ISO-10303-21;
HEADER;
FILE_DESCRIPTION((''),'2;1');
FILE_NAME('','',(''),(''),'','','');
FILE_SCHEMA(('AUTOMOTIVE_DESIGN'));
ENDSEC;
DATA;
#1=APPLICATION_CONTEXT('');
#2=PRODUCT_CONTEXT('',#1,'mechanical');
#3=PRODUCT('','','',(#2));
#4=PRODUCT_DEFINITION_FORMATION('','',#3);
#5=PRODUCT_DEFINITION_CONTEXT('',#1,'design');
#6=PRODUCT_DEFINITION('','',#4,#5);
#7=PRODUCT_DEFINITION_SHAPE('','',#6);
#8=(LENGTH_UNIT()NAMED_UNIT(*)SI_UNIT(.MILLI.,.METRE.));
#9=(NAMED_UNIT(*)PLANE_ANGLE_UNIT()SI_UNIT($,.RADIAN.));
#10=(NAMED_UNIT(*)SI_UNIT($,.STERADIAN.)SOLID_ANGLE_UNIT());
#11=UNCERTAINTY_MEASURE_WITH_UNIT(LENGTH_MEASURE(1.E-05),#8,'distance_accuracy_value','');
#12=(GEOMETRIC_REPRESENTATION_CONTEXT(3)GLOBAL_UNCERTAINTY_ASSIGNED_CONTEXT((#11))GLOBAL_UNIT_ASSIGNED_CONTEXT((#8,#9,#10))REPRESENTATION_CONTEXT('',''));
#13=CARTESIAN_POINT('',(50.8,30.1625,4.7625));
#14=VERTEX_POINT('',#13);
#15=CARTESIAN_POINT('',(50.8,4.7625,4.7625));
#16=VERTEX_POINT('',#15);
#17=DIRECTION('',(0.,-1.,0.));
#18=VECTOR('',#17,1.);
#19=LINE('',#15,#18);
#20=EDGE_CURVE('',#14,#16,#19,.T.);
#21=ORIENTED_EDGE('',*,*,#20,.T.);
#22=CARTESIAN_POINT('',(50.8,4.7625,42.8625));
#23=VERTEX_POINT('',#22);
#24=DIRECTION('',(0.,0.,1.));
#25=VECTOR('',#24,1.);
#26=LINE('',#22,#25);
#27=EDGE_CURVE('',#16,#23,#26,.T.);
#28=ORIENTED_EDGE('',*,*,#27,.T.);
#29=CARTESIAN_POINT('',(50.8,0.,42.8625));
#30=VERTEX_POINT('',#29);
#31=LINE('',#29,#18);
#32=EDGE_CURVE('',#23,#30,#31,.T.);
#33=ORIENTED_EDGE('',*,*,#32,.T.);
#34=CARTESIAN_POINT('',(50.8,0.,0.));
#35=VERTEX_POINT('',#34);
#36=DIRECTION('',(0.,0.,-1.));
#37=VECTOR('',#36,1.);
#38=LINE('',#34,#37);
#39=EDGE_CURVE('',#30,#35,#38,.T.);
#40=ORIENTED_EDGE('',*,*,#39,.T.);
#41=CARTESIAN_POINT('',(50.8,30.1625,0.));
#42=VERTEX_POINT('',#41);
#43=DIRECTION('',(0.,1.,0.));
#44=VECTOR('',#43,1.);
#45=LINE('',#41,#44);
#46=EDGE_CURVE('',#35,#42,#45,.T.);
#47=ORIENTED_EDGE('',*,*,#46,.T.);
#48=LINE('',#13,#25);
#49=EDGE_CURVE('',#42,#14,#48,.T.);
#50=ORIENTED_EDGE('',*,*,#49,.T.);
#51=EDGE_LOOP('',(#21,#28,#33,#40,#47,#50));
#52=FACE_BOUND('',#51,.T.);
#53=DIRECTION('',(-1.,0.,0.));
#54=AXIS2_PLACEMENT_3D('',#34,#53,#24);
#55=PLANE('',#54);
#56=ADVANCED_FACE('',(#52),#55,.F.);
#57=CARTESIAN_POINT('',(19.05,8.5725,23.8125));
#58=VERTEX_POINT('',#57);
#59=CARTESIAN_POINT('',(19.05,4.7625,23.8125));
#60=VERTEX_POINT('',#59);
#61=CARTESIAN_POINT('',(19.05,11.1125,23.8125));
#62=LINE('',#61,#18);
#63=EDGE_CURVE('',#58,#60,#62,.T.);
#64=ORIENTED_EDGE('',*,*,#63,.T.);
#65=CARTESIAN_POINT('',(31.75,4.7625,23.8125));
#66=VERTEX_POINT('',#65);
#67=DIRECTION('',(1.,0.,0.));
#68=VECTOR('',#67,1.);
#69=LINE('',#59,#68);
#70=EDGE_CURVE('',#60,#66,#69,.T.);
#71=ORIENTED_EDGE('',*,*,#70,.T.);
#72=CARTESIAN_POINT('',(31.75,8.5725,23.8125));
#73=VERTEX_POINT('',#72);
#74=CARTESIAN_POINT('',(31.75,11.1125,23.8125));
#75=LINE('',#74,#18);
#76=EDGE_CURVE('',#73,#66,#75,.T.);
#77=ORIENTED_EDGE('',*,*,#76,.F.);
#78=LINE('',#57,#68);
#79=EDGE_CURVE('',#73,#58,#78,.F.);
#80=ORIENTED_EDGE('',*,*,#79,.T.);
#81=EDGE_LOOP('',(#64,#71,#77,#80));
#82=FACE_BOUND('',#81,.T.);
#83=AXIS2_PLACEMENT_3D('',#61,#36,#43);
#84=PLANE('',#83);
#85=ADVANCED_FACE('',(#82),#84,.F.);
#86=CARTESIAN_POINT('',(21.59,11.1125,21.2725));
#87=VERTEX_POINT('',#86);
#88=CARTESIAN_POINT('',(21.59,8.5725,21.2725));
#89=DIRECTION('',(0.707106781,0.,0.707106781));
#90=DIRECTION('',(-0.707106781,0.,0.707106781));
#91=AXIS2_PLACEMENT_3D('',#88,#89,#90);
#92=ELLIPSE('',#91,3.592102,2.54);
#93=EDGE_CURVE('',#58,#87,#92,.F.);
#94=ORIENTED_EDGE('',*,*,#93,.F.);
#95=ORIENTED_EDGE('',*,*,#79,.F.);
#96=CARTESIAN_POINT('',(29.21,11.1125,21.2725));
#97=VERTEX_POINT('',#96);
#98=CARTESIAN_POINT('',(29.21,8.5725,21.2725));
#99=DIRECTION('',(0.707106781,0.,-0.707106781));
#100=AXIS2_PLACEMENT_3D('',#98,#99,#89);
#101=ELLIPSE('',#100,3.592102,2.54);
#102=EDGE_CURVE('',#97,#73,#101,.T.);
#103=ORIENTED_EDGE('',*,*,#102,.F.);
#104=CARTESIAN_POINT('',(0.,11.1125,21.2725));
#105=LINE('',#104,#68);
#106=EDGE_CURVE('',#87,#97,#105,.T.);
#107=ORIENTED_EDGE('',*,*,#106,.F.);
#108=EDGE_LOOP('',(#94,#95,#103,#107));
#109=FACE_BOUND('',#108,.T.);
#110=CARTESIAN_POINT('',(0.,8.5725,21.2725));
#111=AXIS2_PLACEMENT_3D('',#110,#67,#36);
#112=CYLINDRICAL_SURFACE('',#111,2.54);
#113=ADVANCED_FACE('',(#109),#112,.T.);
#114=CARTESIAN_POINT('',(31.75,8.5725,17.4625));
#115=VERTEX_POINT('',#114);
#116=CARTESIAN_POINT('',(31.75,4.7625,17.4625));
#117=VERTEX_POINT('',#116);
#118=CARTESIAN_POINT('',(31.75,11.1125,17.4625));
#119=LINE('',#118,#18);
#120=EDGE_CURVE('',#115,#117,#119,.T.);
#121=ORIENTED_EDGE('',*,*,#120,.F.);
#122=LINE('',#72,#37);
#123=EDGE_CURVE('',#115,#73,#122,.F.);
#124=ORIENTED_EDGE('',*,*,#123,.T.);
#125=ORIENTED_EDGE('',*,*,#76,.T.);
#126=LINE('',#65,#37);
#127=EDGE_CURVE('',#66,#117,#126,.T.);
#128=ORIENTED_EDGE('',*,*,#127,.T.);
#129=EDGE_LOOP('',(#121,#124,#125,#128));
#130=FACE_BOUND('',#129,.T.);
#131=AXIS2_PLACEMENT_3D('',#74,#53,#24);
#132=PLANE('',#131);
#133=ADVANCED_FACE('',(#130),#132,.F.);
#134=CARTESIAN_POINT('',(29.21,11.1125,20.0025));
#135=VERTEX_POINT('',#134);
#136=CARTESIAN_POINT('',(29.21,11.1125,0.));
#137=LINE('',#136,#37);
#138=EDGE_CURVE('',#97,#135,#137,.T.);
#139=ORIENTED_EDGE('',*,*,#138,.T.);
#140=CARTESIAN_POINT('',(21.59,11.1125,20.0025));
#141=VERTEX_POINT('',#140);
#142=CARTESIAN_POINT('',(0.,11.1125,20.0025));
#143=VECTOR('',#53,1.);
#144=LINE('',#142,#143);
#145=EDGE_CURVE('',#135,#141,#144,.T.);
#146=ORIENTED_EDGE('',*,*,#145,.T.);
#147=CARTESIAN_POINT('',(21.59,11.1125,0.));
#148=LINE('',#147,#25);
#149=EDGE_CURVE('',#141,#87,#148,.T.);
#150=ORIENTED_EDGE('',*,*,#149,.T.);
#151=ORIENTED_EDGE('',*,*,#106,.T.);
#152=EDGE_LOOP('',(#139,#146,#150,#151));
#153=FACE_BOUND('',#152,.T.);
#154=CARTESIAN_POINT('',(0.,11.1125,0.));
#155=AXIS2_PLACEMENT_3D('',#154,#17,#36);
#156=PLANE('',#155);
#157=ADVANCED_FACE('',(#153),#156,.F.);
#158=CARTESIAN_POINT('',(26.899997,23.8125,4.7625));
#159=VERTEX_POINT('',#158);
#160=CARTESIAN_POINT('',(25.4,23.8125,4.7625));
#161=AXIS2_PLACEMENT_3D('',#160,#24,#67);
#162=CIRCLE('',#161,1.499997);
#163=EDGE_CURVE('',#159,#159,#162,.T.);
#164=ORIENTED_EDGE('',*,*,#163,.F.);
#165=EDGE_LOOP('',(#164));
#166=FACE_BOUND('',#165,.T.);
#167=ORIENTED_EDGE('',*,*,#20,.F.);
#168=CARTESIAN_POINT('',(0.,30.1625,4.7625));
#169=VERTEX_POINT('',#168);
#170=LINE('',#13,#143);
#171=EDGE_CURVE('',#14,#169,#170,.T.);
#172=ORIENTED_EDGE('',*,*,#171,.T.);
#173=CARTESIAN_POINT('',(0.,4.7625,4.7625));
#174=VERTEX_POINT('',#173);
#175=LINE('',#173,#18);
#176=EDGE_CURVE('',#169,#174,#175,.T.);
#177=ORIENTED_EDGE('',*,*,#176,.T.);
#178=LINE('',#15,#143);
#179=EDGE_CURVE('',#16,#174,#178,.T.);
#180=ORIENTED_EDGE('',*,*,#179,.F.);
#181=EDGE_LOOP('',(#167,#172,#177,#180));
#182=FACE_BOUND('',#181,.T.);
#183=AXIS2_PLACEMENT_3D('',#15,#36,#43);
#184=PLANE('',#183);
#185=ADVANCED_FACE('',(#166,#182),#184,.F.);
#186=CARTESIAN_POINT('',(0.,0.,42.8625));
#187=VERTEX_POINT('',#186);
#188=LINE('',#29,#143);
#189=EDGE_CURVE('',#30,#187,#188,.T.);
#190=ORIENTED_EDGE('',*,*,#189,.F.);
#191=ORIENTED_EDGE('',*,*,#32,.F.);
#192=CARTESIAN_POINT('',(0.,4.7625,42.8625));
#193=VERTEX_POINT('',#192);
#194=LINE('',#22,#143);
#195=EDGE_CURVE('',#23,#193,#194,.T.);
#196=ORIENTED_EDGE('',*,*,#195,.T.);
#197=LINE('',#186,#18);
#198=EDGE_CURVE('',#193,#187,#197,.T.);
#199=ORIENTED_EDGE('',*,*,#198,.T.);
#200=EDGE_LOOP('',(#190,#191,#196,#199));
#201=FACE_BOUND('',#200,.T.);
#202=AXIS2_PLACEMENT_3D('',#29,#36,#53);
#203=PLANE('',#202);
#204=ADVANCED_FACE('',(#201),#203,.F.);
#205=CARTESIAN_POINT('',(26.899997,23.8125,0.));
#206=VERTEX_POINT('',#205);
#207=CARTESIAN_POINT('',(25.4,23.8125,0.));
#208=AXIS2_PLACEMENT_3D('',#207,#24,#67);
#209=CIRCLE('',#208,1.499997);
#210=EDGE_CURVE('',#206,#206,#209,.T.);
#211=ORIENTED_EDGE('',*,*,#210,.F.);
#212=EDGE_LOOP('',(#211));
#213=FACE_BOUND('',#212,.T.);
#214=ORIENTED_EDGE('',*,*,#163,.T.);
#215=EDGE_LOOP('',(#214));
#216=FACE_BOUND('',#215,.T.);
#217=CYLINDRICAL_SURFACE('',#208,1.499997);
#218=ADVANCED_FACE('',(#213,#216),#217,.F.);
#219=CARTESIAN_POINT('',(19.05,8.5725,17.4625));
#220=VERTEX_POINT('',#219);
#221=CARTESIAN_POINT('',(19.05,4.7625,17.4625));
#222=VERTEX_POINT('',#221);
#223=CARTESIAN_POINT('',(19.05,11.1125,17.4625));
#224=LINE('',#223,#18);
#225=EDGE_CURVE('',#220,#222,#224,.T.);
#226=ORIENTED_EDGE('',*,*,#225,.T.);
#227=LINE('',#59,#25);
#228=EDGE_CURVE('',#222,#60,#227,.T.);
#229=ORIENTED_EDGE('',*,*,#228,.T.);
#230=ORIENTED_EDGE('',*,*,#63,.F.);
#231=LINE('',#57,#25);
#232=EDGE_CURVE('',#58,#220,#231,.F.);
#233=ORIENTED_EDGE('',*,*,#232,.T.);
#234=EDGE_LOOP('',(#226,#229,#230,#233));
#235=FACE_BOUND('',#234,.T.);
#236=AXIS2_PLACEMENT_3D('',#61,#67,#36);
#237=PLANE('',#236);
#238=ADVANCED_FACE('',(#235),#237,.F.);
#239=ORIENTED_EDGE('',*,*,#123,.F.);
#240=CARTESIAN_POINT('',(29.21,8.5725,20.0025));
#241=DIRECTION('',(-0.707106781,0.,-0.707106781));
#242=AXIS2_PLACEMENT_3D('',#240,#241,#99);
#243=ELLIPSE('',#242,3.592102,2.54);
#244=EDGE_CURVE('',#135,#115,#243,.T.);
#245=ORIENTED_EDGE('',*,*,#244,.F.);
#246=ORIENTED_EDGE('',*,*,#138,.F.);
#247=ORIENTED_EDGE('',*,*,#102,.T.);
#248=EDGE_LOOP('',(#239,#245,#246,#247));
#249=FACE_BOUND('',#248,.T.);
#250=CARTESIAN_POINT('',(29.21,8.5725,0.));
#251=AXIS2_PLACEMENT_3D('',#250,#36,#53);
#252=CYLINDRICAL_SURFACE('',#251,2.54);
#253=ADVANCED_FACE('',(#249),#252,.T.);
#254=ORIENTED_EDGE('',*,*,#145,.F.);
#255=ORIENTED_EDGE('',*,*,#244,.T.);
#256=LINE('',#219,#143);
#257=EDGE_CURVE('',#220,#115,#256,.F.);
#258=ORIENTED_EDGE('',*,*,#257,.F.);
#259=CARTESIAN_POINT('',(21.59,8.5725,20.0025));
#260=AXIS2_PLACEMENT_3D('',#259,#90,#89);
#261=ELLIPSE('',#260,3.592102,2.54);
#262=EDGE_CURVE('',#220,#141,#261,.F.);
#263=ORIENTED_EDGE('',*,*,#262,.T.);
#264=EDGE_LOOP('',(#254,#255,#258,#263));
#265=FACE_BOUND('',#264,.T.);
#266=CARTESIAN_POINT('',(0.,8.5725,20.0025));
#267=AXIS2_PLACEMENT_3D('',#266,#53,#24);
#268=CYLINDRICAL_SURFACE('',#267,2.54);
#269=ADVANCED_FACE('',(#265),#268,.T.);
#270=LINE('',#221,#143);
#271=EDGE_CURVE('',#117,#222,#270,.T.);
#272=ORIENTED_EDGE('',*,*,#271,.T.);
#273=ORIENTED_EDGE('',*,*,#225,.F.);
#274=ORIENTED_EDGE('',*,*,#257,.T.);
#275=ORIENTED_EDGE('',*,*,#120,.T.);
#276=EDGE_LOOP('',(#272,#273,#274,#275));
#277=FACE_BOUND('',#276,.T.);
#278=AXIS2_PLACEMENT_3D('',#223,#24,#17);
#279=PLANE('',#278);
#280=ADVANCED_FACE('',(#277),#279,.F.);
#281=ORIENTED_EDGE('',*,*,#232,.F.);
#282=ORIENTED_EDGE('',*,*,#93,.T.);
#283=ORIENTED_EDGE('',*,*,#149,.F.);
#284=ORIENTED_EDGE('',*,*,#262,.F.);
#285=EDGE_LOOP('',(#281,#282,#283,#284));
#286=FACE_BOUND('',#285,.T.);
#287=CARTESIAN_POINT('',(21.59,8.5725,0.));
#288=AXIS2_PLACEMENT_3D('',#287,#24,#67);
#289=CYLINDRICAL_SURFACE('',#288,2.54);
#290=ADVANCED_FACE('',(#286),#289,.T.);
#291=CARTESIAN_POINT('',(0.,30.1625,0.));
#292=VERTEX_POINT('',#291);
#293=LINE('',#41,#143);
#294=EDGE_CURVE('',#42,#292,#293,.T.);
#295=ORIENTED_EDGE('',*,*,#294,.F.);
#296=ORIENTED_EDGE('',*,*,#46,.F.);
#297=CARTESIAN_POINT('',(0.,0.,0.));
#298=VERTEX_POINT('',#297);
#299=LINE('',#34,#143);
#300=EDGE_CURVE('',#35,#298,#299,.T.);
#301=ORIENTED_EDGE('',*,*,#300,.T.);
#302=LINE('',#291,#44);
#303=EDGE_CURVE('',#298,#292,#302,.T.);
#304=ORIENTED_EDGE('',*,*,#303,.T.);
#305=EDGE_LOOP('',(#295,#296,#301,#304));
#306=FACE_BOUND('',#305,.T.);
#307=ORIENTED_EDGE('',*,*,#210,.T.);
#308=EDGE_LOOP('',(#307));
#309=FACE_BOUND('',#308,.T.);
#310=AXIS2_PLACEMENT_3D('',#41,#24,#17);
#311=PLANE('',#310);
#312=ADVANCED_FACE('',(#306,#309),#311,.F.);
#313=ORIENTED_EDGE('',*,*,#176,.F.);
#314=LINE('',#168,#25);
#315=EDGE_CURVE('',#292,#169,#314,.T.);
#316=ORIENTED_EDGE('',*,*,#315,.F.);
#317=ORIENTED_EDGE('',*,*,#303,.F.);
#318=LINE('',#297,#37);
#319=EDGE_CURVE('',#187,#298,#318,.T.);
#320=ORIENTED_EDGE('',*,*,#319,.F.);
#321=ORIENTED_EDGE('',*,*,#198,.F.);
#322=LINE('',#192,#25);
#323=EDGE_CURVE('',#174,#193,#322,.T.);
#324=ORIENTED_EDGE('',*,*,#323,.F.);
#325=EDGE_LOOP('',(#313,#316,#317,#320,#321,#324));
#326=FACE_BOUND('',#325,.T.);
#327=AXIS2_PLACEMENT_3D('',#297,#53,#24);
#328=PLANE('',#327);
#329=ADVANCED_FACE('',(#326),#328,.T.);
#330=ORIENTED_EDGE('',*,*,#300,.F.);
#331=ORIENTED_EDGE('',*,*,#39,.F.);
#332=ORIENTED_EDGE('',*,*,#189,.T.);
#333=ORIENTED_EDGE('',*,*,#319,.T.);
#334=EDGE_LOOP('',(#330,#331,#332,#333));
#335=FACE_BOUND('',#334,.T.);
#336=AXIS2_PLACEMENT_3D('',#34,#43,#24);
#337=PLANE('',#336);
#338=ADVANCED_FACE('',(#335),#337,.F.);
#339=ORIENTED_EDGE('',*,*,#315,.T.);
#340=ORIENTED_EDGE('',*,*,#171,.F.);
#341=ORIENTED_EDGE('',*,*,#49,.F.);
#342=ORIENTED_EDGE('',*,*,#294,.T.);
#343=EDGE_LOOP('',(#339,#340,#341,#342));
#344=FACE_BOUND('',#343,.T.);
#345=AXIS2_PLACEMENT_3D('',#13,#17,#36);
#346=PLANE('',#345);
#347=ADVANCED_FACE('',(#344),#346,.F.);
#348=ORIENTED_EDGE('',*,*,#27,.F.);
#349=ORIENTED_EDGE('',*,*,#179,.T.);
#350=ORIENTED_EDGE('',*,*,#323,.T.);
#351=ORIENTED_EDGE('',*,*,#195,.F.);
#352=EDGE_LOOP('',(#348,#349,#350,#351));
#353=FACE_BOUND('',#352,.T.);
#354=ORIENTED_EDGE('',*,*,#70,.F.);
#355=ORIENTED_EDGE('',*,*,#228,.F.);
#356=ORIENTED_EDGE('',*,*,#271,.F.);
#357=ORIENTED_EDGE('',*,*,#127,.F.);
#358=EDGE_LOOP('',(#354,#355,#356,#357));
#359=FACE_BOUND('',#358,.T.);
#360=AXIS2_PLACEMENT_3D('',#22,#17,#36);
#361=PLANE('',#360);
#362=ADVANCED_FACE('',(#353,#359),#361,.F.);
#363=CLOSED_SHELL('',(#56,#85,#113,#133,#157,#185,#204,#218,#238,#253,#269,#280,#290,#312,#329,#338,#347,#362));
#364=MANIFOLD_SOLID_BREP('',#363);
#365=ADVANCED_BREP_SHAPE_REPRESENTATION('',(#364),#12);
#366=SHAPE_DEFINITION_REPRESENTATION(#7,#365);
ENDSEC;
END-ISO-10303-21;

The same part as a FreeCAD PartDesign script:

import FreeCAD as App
import Part
import Sketcher

V = App.Vector
Q = App.Units.Quantity


def edges_at(feature, points):
    """Names of the edges that pass closest to the given points."""
    edges = feature.Shape.Edges
    near = lambda p: min(range(len(edges)), key=lambda i: edges[i].distToShape(Part.Vertex(*p))[0])
    return sorted({f"Edge{near(p) + 1}" for p in points})

doc = App.newDocument("Part")
params = doc.addObject("Spreadsheet::Sheet", "Params")
for row, (alias, value) in enumerate([
    ("sketch1_width", "1 in"),
    ("sketch1_height", "1.5 in"),
    ("sketch1_width2", "1.1875 in"),
    ("pad1_length", "2 in"),
    ("sketch2_width", "0.5 in"),
    ("sketch2_height", "0.25 in"),
    ("pad2_length", "0.25 in"),
    ("fillet_radius", "0.1 in"),
], start=1):
    params.set(f"A{row}", alias)
    params.set(f"B{row}", "=" + value)
    params.setAlias(f"B{row}", alias)

body = doc.addObject("PartDesign::Body", "Body")

# Sketch on YZ plane
sketch1 = doc.addObject("Sketcher::SketchObject", "Sketch")
body.addObject(sketch1)
sketch1.AttachmentSupport = (doc.YZ_Plane, [""])
sketch1.MapMode = "FlatFace"
sketch1.addGeometry([
    Part.LineSegment(V(0, 42.9, 0), V(0, 0, 0)),  # 0
    Part.LineSegment(V(0, 0, 0), V(30.2, 0, 0)),  # 1
    Part.LineSegment(V(30.2, 0, 0), V(30.2, 4.8, 0)),  # 2
    Part.LineSegment(V(30.2, 4.8, 0), V(4.8, 4.8, 0)),  # 3
    Part.LineSegment(V(4.8, 4.8, 0), V(4.8, 42.9, 0)),  # 4
    Part.LineSegment(V(4.8, 42.9, 0), V(0, 42.9, 0)),  # 5
], False)
sketch1.addConstraint([
    Sketcher.Constraint("Coincident", 0, 2, 1, 1),
    Sketcher.Constraint("Coincident", 1, 2, 2, 1),
    Sketcher.Constraint("Coincident", 2, 2, 3, 1),
    Sketcher.Constraint("Coincident", 3, 2, 4, 1),
    Sketcher.Constraint("Coincident", 4, 2, 5, 1),
    Sketcher.Constraint("Coincident", 5, 2, 0, 1),
    Sketcher.Constraint("Vertical", 0),
    Sketcher.Constraint("Horizontal", 1),
    Sketcher.Constraint("Vertical", 2),
    Sketcher.Constraint("Horizontal", 3),
    Sketcher.Constraint("Vertical", 4),
    Sketcher.Constraint("Horizontal", 5),
    Sketcher.Constraint("Coincident", 0, 2, -1, 1),
    Sketcher.Constraint("Equal", 5, 2),
    Sketcher.Constraint("DistanceX", 3, 2, 3, 1, Q("1 in")),
    Sketcher.Constraint("DistanceY", 4, 1, 4, 2, Q("1.5 in")),
    Sketcher.Constraint("DistanceX", 1, 1, 1, 2, Q("1.1875 in")),
])
sketch1.setExpression("Constraints[14]", "Params.sketch1_width")
sketch1.setExpression("Constraints[15]", "Params.sketch1_height")
sketch1.setExpression("Constraints[16]", "Params.sketch1_width2")
pad1 = doc.addObject("PartDesign::Pad", "Pad")
body.addObject(pad1)
pad1.Profile = sketch1
pad1.setExpression("Length", "Params.pad1_length")

# Sketch on XZ plane
sketch2 = doc.addObject("Sketcher::SketchObject", "Sketch001")
body.addObject(sketch2)
sketch2.AttachmentSupport = (doc.XZ_Plane, [""])
sketch2.MapMode = "FlatFace"
sketch2.AttachmentOffset = App.Placement(V(0, 0, -0.1875 * 25.4), App.Rotation())
sketch2.addGeometry([
    Part.LineSegment(V(19, 17, 0), V(19, 24, 0)),
    Part.LineSegment(V(19, 24, 0), V(32, 24, 0)),
    Part.LineSegment(V(32, 24, 0), V(32, 17, 0)),
    Part.LineSegment(V(32, 17, 0), V(19, 17, 0)),
], False)
sketch2.addConstraint([
    Sketcher.Constraint("Coincident", 0, 2, 1, 1),
    Sketcher.Constraint("Coincident", 1, 2, 2, 1),
    Sketcher.Constraint("Coincident", 2, 2, 3, 1),
    Sketcher.Constraint("Coincident", 3, 2, 0, 1),
    Sketcher.Constraint("Vertical", 0),
    Sketcher.Constraint("Horizontal", 1),
    Sketcher.Constraint("Vertical", 2),
    Sketcher.Constraint("Horizontal", 3),
    Sketcher.Constraint("DistanceX", 1, 1, 1, 2, Q("0.5 in")),
    Sketcher.Constraint("DistanceY", 0, 1, 0, 2, Q("0.25 in")),
    Sketcher.Constraint("DistanceX", -1, 1, 0, 2, Q("0.75 in")),
    Sketcher.Constraint("DistanceY", -1, 1, 0, 2, Q("0.9375 in")),
])
sketch2.setExpression("Constraints[8]", "Params.sketch2_width")
sketch2.setExpression("Constraints[9]", "Params.sketch2_height")
pad2 = doc.addObject("PartDesign::Pad", "Pad001")
body.addObject(pad2)
pad2.Profile = sketch2
pad2.setExpression("Length", "Params.pad2_length")
pad2.Reversed = True

# Sketch on XY plane
sketch3 = doc.addObject("Sketcher::SketchObject", "Sketch002")
body.addObject(sketch3)
sketch3.AttachmentSupport = (doc.XY_Plane, [""])
sketch3.MapMode = "FlatFace"
sketch3.AttachmentOffset = App.Placement(V(0, 0, 0.1875 * 25.4), App.Rotation())
sketch3.addGeometry(Part.Circle(V(25.4, 23.8, 0), V(0, 0, 1), 1.5), False)
sketch3.addConstraint([
    Sketcher.Constraint("DistanceX", -1, 1, 0, 3, Q("1 in")),
    Sketcher.Constraint("DistanceY", -1, 1, 0, 3, Q("0.9375 in")),
    Sketcher.Constraint("Diameter", 0, 2.999994),
])
pocket1 = doc.addObject("PartDesign::Pocket", "Pocket")
body.addObject(pocket1)
pocket1.Profile = sketch3
pocket1.Type = "ThroughAll"
doc.recompute()

fillet = doc.addObject("PartDesign::Fillet", "Fillet")
body.addObject(fillet)
fillet.Base = (pocket1, edges_at(pocket1, [
    (19.05, 11.113, 20.637),
    (25.4, 11.113, 23.812),
    (31.75, 11.113, 20.637),
    (25.4, 11.113, 17.462),
]))
fillet.setExpression("Radius", "Params.fillet_radius")

doc.recompute()
